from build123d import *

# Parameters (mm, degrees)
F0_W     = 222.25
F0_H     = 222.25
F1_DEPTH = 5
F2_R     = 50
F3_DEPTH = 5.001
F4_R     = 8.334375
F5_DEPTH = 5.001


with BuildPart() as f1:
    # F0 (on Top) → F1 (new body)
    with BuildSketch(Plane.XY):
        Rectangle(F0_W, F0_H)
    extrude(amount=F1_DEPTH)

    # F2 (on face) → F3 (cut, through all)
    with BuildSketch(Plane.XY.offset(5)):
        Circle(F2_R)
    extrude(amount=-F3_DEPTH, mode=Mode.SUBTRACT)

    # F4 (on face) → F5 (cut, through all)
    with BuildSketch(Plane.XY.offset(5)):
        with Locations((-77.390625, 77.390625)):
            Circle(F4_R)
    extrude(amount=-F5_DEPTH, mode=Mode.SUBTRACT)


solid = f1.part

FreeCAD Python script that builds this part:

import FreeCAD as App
import Part
import Sketcher
from FreeCAD import Vector


def add_polygon(sketch, points):
    """Adds a closed chain of lines whose ends are joined by coincident constraints."""
    first, n = sketch.GeometryCount, len(points)
    for a, b in zip(points, points[1:] + points[:1]):
        sketch.addGeometry(Part.LineSegment(App.Vector(*a, 0), App.Vector(*b, 0)), False)
    for i in range(n):
        sketch.addConstraint(Sketcher.Constraint("Coincident", first + i, 2, first + (i + 1) % n, 1))

doc = App.newDocument("Part")
body = doc.addObject("PartDesign::Body", "Body")

# Sketch on XY plane
sketch1 = body.newObject("Sketcher::SketchObject", "Sketch")
sketch1.AttachmentSupport = (doc.getObject("XY_Plane"), [""])
sketch1.MapMode = "FlatFace"
add_polygon(sketch1, [(-111, 111), (-111, -111), (111, -111), (111, 111)])  # lines 0-3
sketch1.addConstraint([
    Sketcher.Constraint("Vertical", 0),
    Sketcher.Constraint("Horizontal", 1),
    Sketcher.Constraint("Vertical", 2),
    Sketcher.Constraint("Horizontal", 3),
    Sketcher.Constraint("Symmetric", 0, 2, 2, 2, -1, 1),
    Sketcher.Constraint("Equal", 3, 0),
    Sketcher.Constraint("DistanceX", 1, 1, 1, 2, 222.25),
])
pad1 = body.newObject("PartDesign::Pad", "Pad")
pad1.Profile = sketch1
pad1.Length = 5

# Sketch on XY plane
sketch2 = body.newObject("Sketcher::SketchObject", "Sketch001")
sketch2.AttachmentSupport = (doc.getObject("XY_Plane"), [""])
sketch2.MapMode = "FlatFace"
sketch2.AttachmentOffset = App.Placement(Vector(0, 0, 5), App.Rotation())
sketch2.addGeometry(Part.Circle(Vector(0, 0, 0), Vector(0, 0, 1), 50), False)
sketch2.addConstraint([
    Sketcher.Constraint("Coincident", 0, 3, -1, 1),
    Sketcher.Constraint("Diameter", 0, 100.0),
])
pocket1 = body.newObject("PartDesign::Pocket", "Pocket")
pocket1.Profile = sketch2
pocket1.Type = "ThroughAll"

# Sketch on XY plane
sketch3 = body.newObject("Sketcher::SketchObject", "Sketch002")
sketch3.AttachmentSupport = (doc.getObject("XY_Plane"), [""])
sketch3.MapMode = "FlatFace"
sketch3.AttachmentOffset = App.Placement(Vector(0, 0, 5), App.Rotation())
sketch3.addGeometry(Part.Circle(Vector(-77, 77, 0), Vector(0, 0, 1), 8), False)
sketch3.addConstraint([
    Sketcher.Constraint("Diameter", 0, 16.66875),
    Sketcher.Constraint("DistanceX", 0, 3, -1, 1, 77.390625),
    Sketcher.Constraint("DistanceY", -1, 1, 0, 3, 77.390625),
])
pocket2 = body.newObject("PartDesign::Pocket", "Pocket001")
pocket2.Profile = sketch3
pocket2.Type = "ThroughAll"

doc.recompute()
